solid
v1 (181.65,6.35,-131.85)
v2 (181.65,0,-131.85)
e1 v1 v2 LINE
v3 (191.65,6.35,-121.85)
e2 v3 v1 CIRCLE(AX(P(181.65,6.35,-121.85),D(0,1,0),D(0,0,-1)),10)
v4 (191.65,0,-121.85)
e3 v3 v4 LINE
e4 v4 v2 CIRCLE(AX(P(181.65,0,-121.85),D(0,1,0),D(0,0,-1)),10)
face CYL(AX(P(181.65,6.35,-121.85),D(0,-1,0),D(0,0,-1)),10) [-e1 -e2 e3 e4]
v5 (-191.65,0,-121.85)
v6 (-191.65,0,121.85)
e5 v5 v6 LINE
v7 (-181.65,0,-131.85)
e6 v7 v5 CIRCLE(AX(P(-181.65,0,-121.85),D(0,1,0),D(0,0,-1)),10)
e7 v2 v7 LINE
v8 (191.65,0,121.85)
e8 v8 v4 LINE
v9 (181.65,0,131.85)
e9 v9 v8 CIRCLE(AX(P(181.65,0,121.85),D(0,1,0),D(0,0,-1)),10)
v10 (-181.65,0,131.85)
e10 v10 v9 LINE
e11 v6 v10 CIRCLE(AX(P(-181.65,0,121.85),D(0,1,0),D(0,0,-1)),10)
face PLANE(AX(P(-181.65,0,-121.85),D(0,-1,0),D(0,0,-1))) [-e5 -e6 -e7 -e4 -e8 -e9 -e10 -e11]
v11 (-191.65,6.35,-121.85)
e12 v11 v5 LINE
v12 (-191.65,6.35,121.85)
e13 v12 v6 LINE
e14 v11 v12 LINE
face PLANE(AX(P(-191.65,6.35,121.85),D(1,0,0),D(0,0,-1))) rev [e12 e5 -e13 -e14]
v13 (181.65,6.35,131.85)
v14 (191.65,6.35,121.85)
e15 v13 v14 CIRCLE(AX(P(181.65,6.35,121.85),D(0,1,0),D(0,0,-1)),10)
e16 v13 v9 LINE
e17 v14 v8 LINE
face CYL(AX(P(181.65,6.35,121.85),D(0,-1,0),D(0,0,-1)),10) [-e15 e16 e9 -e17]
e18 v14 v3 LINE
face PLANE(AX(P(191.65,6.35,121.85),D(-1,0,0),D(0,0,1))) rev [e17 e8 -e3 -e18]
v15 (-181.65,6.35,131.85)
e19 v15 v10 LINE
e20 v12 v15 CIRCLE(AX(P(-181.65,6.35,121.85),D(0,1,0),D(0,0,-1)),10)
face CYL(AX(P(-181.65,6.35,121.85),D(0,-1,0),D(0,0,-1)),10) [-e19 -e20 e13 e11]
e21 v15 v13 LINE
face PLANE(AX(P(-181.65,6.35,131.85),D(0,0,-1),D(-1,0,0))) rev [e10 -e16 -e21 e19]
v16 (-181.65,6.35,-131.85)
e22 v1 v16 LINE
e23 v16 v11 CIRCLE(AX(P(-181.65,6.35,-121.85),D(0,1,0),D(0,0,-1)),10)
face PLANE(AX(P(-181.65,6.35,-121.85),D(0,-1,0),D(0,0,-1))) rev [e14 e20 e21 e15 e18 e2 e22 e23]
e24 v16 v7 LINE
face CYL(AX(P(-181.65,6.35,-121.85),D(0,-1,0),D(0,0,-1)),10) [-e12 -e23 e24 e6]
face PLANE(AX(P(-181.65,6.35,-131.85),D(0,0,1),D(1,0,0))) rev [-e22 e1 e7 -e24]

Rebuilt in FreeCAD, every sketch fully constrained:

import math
import FreeCAD as App
import Part
import Sketcher

V = App.Vector
Q = App.Units.Quantity

doc = App.newDocument("Part")
body = doc.addObject("PartDesign::Body", "Body")

# Sketch on XZ plane
sketch1 = body.newObject("Sketcher::SketchObject", "Sketch")
sketch1.AttachmentSupport = (doc.getObject("XZ_Plane"), [""])
sketch1.MapMode = "FlatFace"
sketch1.addGeometry(Part.LineSegment(V(-182, 132, 0), V(182, 132, 0)), False)
sketch1.addGeometry(Part.ArcOfCircle(Part.Circle(V(182, 122, 0), V(0, 0, 1), 10), math.radians(0), math.radians(90)), False)
sketch1.addGeometry(Part.LineSegment(V(192, 122, 0), V(192, -122, 0)), False)
sketch1.addGeometry(Part.ArcOfCircle(Part.Circle(V(182, -122, 0), V(0, 0, 1), 10), math.radians(-90), math.radians(0)), False)
sketch1.addGeometry(Part.LineSegment(V(182, -132, 0), V(-182, -132, 0)), False)
sketch1.addGeometry(Part.ArcOfCircle(Part.Circle(V(-182, -122, 0), V(0, 0, 1), 10), math.radians(180), math.radians(270)), False)
sketch1.addGeometry(Part.LineSegment(V(-192, -122, 0), V(-192, 122, 0)), False)
sketch1.addGeometry(Part.ArcOfCircle(Part.Circle(V(-182, 122, 0), V(0, 0, 1), 10), math.radians(90), math.radians(180)), False)
sketch1.addConstraint(Sketcher.Constraint("Tangent", 0, 2, 1, 2))
sketch1.addConstraint(Sketcher.Constraint("Tangent", 1, 1, 2, 1))
sketch1.addConstraint(Sketcher.Constraint("Tangent", 2, 2, 3, 2))
sketch1.addConstraint(Sketcher.Constraint("Tangent", 3, 1, 4, 1))
sketch1.addConstraint(Sketcher.Constraint("Tangent", 4, 2, 5, 2))
sketch1.addConstraint(Sketcher.Constraint("Tangent", 5, 1, 6, 1))
sketch1.addConstraint(Sketcher.Constraint("Tangent", 6, 2, 7, 2))
sketch1.addConstraint(Sketcher.Constraint("Tangent", 7, 1, 0, 1))
sketch1.addConstraint(Sketcher.Constraint("Horizontal", 0))
sketch1.addConstraint(Sketcher.Constraint("Vertical", 2))
sketch1.addConstraint(Sketcher.Constraint("Horizontal", 4))
sketch1.addConstraint(Sketcher.Constraint("Vertical", 6))
sketch1.addConstraint(Sketcher.Constraint("Equal", 1, 3))
sketch1.addConstraint(Sketcher.Constraint("Equal", 3, 5))
sketch1.addConstraint(Sketcher.Constraint("Equal", 5, 7))
sketch1.addConstraint(Sketcher.Constraint("Symmetric", 1, 3, 5, 3, -1, 1))
sketch1.addConstraint(Sketcher.Constraint("Radius", 1, Q("10 mm")))
sketch1.addConstraint(Sketcher.Constraint("DistanceX", 0, 1, 0, 2, Q("363.3 mm")))
sketch1.addConstraint(Sketcher.Constraint("DistanceY", 2, 2, 2, 1, Q("243.7 mm")))
pad1 = body.newObject("PartDesign::Pad", "Pad")
pad1.Profile = sketch1
pad1.Length = 6.35
pad1.Reversed = True

doc.recompute()
